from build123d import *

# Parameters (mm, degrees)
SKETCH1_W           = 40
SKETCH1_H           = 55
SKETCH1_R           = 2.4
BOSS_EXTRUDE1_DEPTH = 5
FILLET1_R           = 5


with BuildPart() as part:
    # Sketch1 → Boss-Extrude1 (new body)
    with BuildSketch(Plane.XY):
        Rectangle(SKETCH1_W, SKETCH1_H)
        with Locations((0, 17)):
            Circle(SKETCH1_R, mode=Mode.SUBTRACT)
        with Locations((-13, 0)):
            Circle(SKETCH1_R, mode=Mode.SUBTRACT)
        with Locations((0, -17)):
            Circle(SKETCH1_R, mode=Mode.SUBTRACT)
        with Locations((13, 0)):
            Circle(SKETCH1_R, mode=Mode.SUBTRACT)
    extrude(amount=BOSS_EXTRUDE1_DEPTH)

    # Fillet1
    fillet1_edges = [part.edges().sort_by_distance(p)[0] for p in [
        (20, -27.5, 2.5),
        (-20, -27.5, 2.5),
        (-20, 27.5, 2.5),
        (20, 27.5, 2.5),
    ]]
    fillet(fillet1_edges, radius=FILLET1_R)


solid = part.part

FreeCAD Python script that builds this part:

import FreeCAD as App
import Part
import Sketcher

V = App.Vector


def edges_at(feature, points):
    """Names of the edges that pass closest to the given points."""
    edges = feature.Shape.Edges
    near = lambda p: min(range(len(edges)), key=lambda i: edges[i].distToShape(Part.Vertex(*p))[0])
    return sorted({f"Edge{near(p) + 1}" for p in points})


def add_polygon(sketch, points):
    """Adds a closed chain of lines whose ends are joined by coincident constraints."""
    first, n = sketch.GeometryCount, len(points)
    for a, b in zip(points, points[1:] + points[:1]):
        sketch.addGeometry(Part.LineSegment(App.Vector(*a, 0), App.Vector(*b, 0)), False)
    for i in range(n):
        sketch.addConstraint(Sketcher.Constraint("Coincident", first + i, 2, first + (i + 1) % n, 1))

doc = App.newDocument("Part")
body = doc.addObject("PartDesign::Body", "Body")

# Sketch on XY plane
sketch1 = body.newObject("Sketcher::SketchObject", "Sketch")
sketch1.AttachmentSupport = (doc.getObject("XY_Plane"), [""])
sketch1.MapMode = "FlatFace"
add_polygon(sketch1, [(-20, 27.5), (-20, -27.5), (20, -27.5), (20, 27.5)])  # lines 0-3
sketch1.addGeometry(Part.Circle(V(0, -17, 0), V(0, 0, 1), 2.4), False)  # 4
sketch1.addGeometry(Part.Circle(V(-13, 0, 0), V(0, 0, 1), 2.4), False)  # 5
sketch1.addGeometry(Part.Circle(V(0, 17, 0), V(0, 0, 1), 2.4), False)  # 6
sketch1.addGeometry(Part.Circle(V(13, 0, 0), V(0, 0, 1), 2.4), False)  # 7
sketch1.addConstraint([
    Sketcher.Constraint("Vertical", 0),
    Sketcher.Constraint("Horizontal", 1),
    Sketcher.Constraint("Vertical", 2),
    Sketcher.Constraint("Horizontal", 3),
    Sketcher.Constraint("Equal", 4, 5),
    Sketcher.Constraint("Equal", 5, 6),
    Sketcher.Constraint("Equal", 6, 7),
    Sketcher.Constraint("Symmetric", 4, 3, 6, 3, -1, 1),
    Sketcher.Constraint("Symmetric", 5, 3, 7, 3, -1, 1),
    Sketcher.Constraint("Symmetric", 0, 2, 2, 2, -1, 1),
    Sketcher.Constraint("PointOnObject", 4, 3, -2),
    Sketcher.Constraint("PointOnObject", 5, 3, -1),
    Sketcher.Constraint("Diameter", 4, 4.8),
    Sketcher.Constraint("DistanceX", 1, 1, 1, 2, 40.0),
    Sketcher.Constraint("DistanceY", 0, 2, 0, 1, 55.0),
    Sketcher.Constraint("DistanceY", 4, 3, -1, 1, 17.0),
    Sketcher.Constraint("DistanceX", 5, 3, -1, 1, 13.0),
])
pad1 = body.newObject("PartDesign::Pad", "Pad")
pad1.Profile = sketch1
pad1.Length = 5
doc.recompute()

fillet = body.newObject("PartDesign::Fillet", "Fillet")
fillet.Base = (pad1, edges_at(pad1, [
    (20, -27.5, 2.5),
    (-20, -27.5, 2.5),
    (-20, 27.5, 2.5),
    (20, 27.5, 2.5),
]))
fillet.Radius = 5

doc.recompute()
